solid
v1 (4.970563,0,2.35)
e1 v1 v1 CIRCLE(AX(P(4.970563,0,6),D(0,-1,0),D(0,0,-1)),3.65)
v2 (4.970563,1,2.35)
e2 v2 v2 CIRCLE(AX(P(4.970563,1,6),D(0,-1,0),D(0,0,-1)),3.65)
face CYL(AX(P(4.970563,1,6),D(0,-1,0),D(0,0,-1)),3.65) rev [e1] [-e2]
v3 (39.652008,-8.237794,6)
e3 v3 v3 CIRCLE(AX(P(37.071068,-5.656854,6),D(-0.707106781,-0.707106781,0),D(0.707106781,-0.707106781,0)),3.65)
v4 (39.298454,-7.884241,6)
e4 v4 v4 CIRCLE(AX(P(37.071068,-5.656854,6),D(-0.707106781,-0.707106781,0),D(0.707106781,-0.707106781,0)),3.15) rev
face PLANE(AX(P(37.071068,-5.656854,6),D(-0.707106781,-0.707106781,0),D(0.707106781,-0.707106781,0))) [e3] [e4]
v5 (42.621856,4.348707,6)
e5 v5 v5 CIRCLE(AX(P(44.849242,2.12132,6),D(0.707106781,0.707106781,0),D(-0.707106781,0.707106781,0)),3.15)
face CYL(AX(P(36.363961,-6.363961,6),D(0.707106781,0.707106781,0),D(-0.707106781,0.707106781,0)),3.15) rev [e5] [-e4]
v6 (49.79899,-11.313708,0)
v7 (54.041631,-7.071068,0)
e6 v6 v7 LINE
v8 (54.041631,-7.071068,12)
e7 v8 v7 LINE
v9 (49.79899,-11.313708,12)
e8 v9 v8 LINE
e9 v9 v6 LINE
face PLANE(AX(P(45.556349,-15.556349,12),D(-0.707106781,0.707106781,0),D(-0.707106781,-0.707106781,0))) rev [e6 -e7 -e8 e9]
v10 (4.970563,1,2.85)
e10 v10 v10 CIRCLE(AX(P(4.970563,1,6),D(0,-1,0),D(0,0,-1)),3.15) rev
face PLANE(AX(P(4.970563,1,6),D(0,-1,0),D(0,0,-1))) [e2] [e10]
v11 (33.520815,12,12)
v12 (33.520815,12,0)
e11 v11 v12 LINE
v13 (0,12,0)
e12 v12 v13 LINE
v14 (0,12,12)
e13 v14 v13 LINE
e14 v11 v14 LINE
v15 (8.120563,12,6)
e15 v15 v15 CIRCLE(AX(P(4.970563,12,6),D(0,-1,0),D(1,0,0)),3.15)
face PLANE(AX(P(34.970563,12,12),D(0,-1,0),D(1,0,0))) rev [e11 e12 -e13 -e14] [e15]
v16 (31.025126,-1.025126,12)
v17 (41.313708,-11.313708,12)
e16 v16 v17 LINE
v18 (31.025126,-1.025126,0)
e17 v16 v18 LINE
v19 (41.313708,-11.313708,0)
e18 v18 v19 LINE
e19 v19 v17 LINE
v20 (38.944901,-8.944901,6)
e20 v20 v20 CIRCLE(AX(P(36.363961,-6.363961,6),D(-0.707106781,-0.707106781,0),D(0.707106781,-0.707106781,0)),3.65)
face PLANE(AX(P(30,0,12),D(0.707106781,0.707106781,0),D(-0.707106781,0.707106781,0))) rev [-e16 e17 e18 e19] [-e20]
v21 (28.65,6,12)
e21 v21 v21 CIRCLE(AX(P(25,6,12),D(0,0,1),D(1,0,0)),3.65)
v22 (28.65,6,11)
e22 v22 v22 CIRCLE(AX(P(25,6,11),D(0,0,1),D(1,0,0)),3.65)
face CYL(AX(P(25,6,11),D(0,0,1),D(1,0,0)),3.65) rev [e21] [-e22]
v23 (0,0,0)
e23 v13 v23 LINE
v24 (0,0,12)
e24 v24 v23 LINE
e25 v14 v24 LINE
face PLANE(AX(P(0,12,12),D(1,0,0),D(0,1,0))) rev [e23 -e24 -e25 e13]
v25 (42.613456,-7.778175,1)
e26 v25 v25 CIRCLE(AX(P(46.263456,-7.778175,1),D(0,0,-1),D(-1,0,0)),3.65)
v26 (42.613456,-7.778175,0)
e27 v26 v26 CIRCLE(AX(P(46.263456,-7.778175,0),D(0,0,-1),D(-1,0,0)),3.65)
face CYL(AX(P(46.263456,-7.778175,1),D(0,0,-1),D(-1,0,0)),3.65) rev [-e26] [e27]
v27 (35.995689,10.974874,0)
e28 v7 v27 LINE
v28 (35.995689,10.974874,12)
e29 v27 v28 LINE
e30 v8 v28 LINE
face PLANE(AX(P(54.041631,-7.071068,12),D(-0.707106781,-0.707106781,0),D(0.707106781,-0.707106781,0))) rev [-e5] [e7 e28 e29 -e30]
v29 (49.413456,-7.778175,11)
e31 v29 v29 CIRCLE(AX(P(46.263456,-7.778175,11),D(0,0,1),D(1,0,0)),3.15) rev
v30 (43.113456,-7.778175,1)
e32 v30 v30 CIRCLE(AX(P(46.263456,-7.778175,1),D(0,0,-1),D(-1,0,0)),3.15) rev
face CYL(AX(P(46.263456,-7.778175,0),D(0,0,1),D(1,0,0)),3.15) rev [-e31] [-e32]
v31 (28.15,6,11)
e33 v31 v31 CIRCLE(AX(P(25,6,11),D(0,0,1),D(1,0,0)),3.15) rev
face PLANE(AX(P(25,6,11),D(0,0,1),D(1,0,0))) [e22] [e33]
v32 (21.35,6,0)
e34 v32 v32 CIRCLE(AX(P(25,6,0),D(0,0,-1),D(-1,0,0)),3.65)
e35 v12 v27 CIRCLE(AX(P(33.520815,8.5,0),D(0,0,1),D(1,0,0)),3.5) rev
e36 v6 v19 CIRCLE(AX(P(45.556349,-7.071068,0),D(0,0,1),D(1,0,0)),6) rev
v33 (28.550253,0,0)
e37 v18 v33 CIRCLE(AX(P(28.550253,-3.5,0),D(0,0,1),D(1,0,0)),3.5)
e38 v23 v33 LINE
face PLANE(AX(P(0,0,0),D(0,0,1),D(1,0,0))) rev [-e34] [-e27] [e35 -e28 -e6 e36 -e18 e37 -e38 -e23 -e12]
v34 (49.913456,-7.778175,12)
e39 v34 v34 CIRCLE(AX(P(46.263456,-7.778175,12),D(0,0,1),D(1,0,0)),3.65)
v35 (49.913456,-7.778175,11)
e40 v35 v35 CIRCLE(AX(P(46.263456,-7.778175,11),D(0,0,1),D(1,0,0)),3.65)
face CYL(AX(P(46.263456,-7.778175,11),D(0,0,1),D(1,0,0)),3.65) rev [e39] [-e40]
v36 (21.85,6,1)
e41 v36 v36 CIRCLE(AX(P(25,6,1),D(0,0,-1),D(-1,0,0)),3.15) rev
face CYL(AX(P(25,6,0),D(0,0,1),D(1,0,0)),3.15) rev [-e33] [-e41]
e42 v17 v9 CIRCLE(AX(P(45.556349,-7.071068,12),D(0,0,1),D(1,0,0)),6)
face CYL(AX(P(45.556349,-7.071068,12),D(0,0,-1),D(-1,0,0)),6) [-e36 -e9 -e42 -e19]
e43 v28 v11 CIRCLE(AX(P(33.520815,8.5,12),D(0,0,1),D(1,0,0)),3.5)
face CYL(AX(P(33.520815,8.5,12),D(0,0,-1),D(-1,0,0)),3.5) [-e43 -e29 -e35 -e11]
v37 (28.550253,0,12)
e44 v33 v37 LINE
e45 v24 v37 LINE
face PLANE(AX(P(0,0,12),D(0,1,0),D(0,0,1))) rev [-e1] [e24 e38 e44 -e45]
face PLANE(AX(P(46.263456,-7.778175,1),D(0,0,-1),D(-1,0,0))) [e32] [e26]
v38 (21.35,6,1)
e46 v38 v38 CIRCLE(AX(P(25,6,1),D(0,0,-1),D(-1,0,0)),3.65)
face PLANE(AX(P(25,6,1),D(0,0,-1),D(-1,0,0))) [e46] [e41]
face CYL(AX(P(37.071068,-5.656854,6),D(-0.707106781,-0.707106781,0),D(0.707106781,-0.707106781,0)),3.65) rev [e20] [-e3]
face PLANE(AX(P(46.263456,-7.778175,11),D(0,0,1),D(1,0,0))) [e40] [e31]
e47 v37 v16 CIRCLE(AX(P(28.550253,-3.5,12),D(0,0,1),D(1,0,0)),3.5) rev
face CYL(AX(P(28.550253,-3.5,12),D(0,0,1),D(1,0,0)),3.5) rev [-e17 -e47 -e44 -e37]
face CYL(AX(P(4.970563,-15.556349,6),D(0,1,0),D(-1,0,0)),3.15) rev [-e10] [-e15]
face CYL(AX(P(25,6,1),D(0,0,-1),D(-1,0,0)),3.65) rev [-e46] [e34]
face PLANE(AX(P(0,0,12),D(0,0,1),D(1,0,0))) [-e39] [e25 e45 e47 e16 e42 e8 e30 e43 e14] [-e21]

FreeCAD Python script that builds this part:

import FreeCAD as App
import Part
import Sketcher
from FreeCAD import Vector
Q = App.Units.Quantity


def edges_at(feature, points):
    """Names of the edges that pass closest to the given points."""
    edges = feature.Shape.Edges
    near = lambda p: min(range(len(edges)), key=lambda i: edges[i].distToShape(Part.Vertex(*p))[0])
    return sorted({f"Edge{near(p) + 1}" for p in points})


def add_polygon(sketch, points):
    """Adds a closed chain of lines whose ends are joined by coincident constraints."""
    first, n = sketch.GeometryCount, len(points)
    for a, b in zip(points, points[1:] + points[:1]):
        sketch.addGeometry(Part.LineSegment(App.Vector(*a, 0), App.Vector(*b, 0)), False)
    for i in range(n):
        sketch.addConstraint(Sketcher.Constraint("Coincident", first + i, 2, first + (i + 1) % n, 1))

doc = App.newDocument("Part")
params = doc.addObject("Spreadsheet::Sheet", "Params")
for row, (alias, value) in enumerate([
    ("sketch1_width", "30 mm"),
    ("sketch1_height", "12 mm"),
    ("sketch1_length", "22 mm"),
    ("sketch1_length2", "12 mm"),
    ("pad1_length", "12 mm"),
    ("sketch2_diameter", "6.3 mm"),
    ("sketch3_diameter", "6.3 mm"),
    ("pocket2_length", "12 mm"),
    ("sketch4_diameter", "6.3 mm"),
    ("sketch5_diameter", "7.3 mm"),
    ("pocket4_length", "1 mm"),
    ("sketch6_diameter", "7.3 mm"),
    ("pocket5_length", "1 mm"),
    ("sketch7_diameter", "7.3 mm"),
    ("pocket6_length", "1 mm"),
    ("sketch8_diameter", "7.3 mm"),
    ("pocket7_length", "1 mm"),
    ("fillet_radius", "3.5 mm"),
    ("fillet2_radius", "6 mm"),
], start=1):
    params.set(f"A{row}", alias)
    params.set(f"B{row}", "=" + value)
    params.setAlias(f"B{row}", alias)

body = doc.addObject("PartDesign::Body", "Body")

sketch1 = doc.addObject("Sketcher::SketchObject", "Sketch")
body.addObject(sketch1)
sketch1.AttachmentSupport = (doc.XY_Plane, [""])
sketch1.MapMode = "FlatFace"
add_polygon(sketch1, [(0, 0), (30, 0), (46, -16), (54, -7), (35, 12), (0, 12)])
sketch1.addConstraint(Sketcher.Constraint("Horizontal", 0))
sketch1.addConstraint(Sketcher.Constraint("Horizontal", 4))
sketch1.addConstraint(Sketcher.Constraint("Vertical", 5))
sketch1.addConstraint(Sketcher.Constraint("Coincident", 5, 2, -1, 1))
sketch1.addConstraint(Sketcher.Constraint("Perpendicular", 1, 2))
sketch1.addConstraint(Sketcher.Constraint("Perpendicular", 2, 3))
sketch1.addConstraint(Sketcher.Constraint("DistanceX", 0, 1, 0, 2, Q("30 mm")))
sketch1.addConstraint(Sketcher.Constraint("DistanceY", 5, 2, 5, 1, Q("12 mm")))
sketch1.addConstraint(Sketcher.Constraint("Angle", 1, Q("-45 deg")))
sketch1.addConstraint(Sketcher.Constraint("Distance", 1, Q("22 mm")))
sketch1.addConstraint(Sketcher.Constraint("Distance", 2, Q("12 mm")))
sketch1.setExpression("Constraints[12]", "Params.sketch1_width")
sketch1.setExpression("Constraints[13]", "Params.sketch1_height")
sketch1.setExpression("Constraints[15]", "Params.sketch1_length")
sketch1.setExpression("Constraints[16]", "Params.sketch1_length2")
pad1 = doc.addObject("PartDesign::Pad", "Pad")
body.addObject(pad1)
pad1.Profile = sketch1
pad1.setExpression("Length", "Params.pad1_length")

sketch2 = doc.addObject("Sketcher::SketchObject", "Sketch001")
body.addObject(sketch2)
sketch2.AttachmentSupport = (doc.XY_Plane, [""])
sketch2.MapMode = "FlatFace"
sketch2.AttachmentOffset = App.Placement(Vector(0, 0, 12), App.Rotation())
sketch2.addGeometry(Part.Circle(Vector(25, 6, 0), Vector(0, 0, 1), 3.1), False)
sketch2.addGeometry(Part.Circle(Vector(46.3, -7.8, 0), Vector(0, 0, 1), 3.1), False)
sketch2.addConstraint(Sketcher.Constraint("Equal", 0, 1))
sketch2.addConstraint(Sketcher.Constraint("Diameter", 0, Q("6.3 mm")))
sketch2.addConstraint(Sketcher.Constraint("DistanceX", -1, 1, 0, 3, Q("25 mm")))
sketch2.addConstraint(Sketcher.Constraint("DistanceY", -1, 1, 0, 3, Q("6 mm")))
sketch2.addConstraint(Sketcher.Constraint("DistanceX", -1, 1, 1, 3, Q("46.263456 mm")))
sketch2.addConstraint(Sketcher.Constraint("DistanceY", 1, 3, -1, 1, Q("7.778175 mm")))
sketch2.setExpression("Constraints[1]", "Params.sketch2_diameter")
pocket1 = doc.addObject("PartDesign::Pocket", "Pocket")
body.addObject(pocket1)
pocket1.Profile = sketch2
pocket1.Type = "ThroughAll"
pocket1.Midplane = True

sketch3 = doc.addObject("Sketcher::SketchObject", "Sketch002")
body.addObject(sketch3)
sketch3.Placement = App.Placement(Vector(23.485281, 23.485281, 0), App.Rotation(Vector(0, 0, -1), Vector(-0.707106781, 0.707106781, 0), Vector(0.707106781, 0.707106781, 0), "ZXY"))
sketch3.addGeometry(Part.Circle(Vector(-6, -30.2, 0), Vector(0, 0, 1), 3.1), False)
sketch3.addConstraint(Sketcher.Constraint("Diameter", 0, Q("6.3 mm")))
sketch3.addConstraint(Sketcher.Constraint("DistanceX", 0, 3, -1, 1, Q("6 mm")))
sketch3.addConstraint(Sketcher.Constraint("DistanceY", 0, 3, -1, 1, Q("30.213203 mm")))
sketch3.setExpression("Constraints[0]", "Params.sketch3_diameter")
pocket2 = doc.addObject("PartDesign::Pocket", "Pocket001")
body.addObject(pocket2)
pocket2.Profile = sketch3
pocket2.setExpression("Length", "Params.pocket2_length")

sketch4 = doc.addObject("Sketcher::SketchObject", "Sketch003")
body.addObject(sketch4)
sketch4.AttachmentSupport = (doc.XZ_Plane, [""])
sketch4.MapMode = "FlatFace"
sketch4.AttachmentOffset = App.Placement(Vector(0, 0, -12), App.Rotation())
sketch4.addGeometry(Part.Circle(Vector(5, 6, 0), Vector(0, 0, 1), 3.1), False)
sketch4.addConstraint(Sketcher.Constraint("Diameter", 0, Q("6.3 mm")))
sketch4.addConstraint(Sketcher.Constraint("DistanceY", -1, 1, 0, 3, Q("6 mm")))
sketch4.addConstraint(Sketcher.Constraint("DistanceX", -1, 1, 0, 3, Q("4.970563 mm")))
sketch4.setExpression("Constraints[0]", "Params.sketch4_diameter")
pocket3 = doc.addObject("PartDesign::Pocket", "Pocket002")
body.addObject(pocket3)
pocket3.Profile = sketch4
pocket3.Type = "ThroughAll"
pocket3.Midplane = True

sketch5 = doc.addObject("Sketcher::SketchObject", "Sketch004")
body.addObject(sketch5)
sketch5.AttachmentSupport = (doc.XY_Plane, [""])
sketch5.MapMode = "FlatFace"
sketch5.AttachmentOffset = App.Placement(Vector(0, 0, 12), App.Rotation())
sketch5.addGeometry(Part.Circle(Vector(25, 6, 0), Vector(0, 0, 1), 3.6), False)
sketch5.addGeometry(Part.Circle(Vector(46.3, -7.8, 0), Vector(0, 0, 1), 3.6), False)
sketch5.addConstraint(Sketcher.Constraint("Equal", 0, 1))
sketch5.addConstraint(Sketcher.Constraint("Diameter", 0, Q("7.3 mm")))
sketch5.addConstraint(Sketcher.Constraint("DistanceX", -1, 1, 0, 3, Q("25 mm")))
sketch5.addConstraint(Sketcher.Constraint("DistanceY", -1, 1, 0, 3, Q("6 mm")))
sketch5.addConstraint(Sketcher.Constraint("DistanceX", -1, 1, 1, 3, Q("46.263456 mm")))
sketch5.addConstraint(Sketcher.Constraint("DistanceY", 1, 3, -1, 1, Q("7.778175 mm")))
sketch5.setExpression("Constraints[1]", "Params.sketch5_diameter")
pocket4 = doc.addObject("PartDesign::Pocket", "Pocket003")
body.addObject(pocket4)
pocket4.Profile = sketch5
pocket4.setExpression("Length", "Params.pocket4_length")

sketch6 = doc.addObject("Sketcher::SketchObject", "Sketch005")
body.addObject(sketch6)
sketch6.AttachmentSupport = (doc.XY_Plane, [""])
sketch6.MapMode = "FlatFace"
sketch6.addGeometry(Part.Circle(Vector(25, 6, 0), Vector(0, 0, 1), 3.6), False)
sketch6.addGeometry(Part.Circle(Vector(46.3, -7.8, 0), Vector(0, 0, 1), 3.6), False)
sketch6.addConstraint(Sketcher.Constraint("Equal", 0, 1))
sketch6.addConstraint(Sketcher.Constraint("Diameter", 0, Q("7.3 mm")))
sketch6.addConstraint(Sketcher.Constraint("DistanceX", -1, 1, 0, 3, Q("25 mm")))
sketch6.addConstraint(Sketcher.Constraint("DistanceY", -1, 1, 0, 3, Q("6 mm")))
sketch6.addConstraint(Sketcher.Constraint("DistanceX", -1, 1, 1, 3, Q("46.263456 mm")))
sketch6.addConstraint(Sketcher.Constraint("DistanceY", 1, 3, -1, 1, Q("7.778175 mm")))
sketch6.setExpression("Constraints[1]", "Params.sketch6_diameter")
pocket5 = doc.addObject("PartDesign::Pocket", "Pocket004")
body.addObject(pocket5)
pocket5.Profile = sketch6
pocket5.setExpression("Length", "Params.pocket5_length")
pocket5.Reversed = True

sketch7 = doc.addObject("Sketcher::SketchObject", "Sketch006")
body.addObject(sketch7)
sketch7.Placement = App.Placement(Vector(15, 15, 0), App.Rotation(Vector(0, 0, 1), Vector(-0.707106781, 0.707106781, 0), Vector(-0.707106781, -0.707106781, 0), "ZXY"))
sketch7.addGeometry(Part.Circle(Vector(6, -30.2, 0), Vector(0, 0, 1), 3.6), False)
sketch7.addConstraint(Sketcher.Constraint("Diameter", 0, Q("7.3 mm")))
sketch7.addConstraint(Sketcher.Constraint("DistanceX", -1, 1, 0, 3, Q("6 mm")))
sketch7.addConstraint(Sketcher.Constraint("DistanceY", 0, 3, -1, 1, Q("30.213203 mm")))
sketch7.setExpression("Constraints[0]", "Params.sketch7_diameter")
pocket6 = doc.addObject("PartDesign::Pocket", "Pocket005")
body.addObject(pocket6)
pocket6.Profile = sketch7
pocket6.setExpression("Length", "Params.pocket6_length")

sketch8 = doc.addObject("Sketcher::SketchObject", "Sketch007")
body.addObject(sketch8)
sketch8.AttachmentSupport = (doc.XZ_Plane, [""])
sketch8.MapMode = "FlatFace"
sketch8.addGeometry(Part.Circle(Vector(5, 6, 0), Vector(0, 0, 1), 3.6), False)
sketch8.addConstraint(Sketcher.Constraint("Diameter", 0, Q("7.3 mm")))
sketch8.addConstraint(Sketcher.Constraint("DistanceY", -1, 1, 0, 3, Q("6 mm")))
sketch8.addConstraint(Sketcher.Constraint("DistanceX", -1, 1, 0, 3, Q("4.970563 mm")))
sketch8.setExpression("Constraints[0]", "Params.sketch8_diameter")
pocket7 = doc.addObject("PartDesign::Pocket", "Pocket006")
body.addObject(pocket7)
pocket7.Profile = sketch8
pocket7.setExpression("Length", "Params.pocket7_length")
doc.recompute()

fillet = doc.addObject("PartDesign::Fillet", "Fillet")
body.addObject(fillet)
fillet.Base = (pocket7, edges_at(pocket7, [(34.971, 12, 6), (30, 0, 6)]))
fillet.setExpression("Radius", "Params.fillet_radius")
doc.recompute()

fillet2 = doc.addObject("PartDesign::Fillet", "Fillet001")
body.addObject(fillet2)
fillet2.Base = (fillet, edges_at(fillet, [(45.556, -15.556, 6)]))
fillet2.setExpression("Radius", "Params.fillet2_radius")

doc.recompute()
